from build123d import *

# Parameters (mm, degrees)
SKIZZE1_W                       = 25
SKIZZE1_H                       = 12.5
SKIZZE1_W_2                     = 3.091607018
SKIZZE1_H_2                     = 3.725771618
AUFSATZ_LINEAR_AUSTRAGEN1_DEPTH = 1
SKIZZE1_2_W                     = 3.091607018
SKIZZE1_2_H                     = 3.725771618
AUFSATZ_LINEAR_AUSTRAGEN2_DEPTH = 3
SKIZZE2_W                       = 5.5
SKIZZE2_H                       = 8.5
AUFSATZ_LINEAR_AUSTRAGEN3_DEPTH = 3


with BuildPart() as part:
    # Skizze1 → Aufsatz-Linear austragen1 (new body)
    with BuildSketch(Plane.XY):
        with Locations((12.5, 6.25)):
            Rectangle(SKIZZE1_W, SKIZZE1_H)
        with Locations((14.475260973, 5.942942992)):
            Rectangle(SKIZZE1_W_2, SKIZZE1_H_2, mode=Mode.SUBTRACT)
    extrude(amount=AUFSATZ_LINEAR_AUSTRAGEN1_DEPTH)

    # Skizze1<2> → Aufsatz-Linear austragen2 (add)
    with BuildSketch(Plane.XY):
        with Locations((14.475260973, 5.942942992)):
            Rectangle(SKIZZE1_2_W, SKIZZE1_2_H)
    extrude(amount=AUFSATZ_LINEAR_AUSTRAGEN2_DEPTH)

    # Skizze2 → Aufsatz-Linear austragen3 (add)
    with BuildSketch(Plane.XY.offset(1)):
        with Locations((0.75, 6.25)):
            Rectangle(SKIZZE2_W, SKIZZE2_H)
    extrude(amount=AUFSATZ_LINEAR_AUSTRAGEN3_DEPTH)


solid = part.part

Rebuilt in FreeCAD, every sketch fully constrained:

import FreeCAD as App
import Part
import Sketcher
from FreeCAD import Vector
Q = App.Units.Quantity


def add_polygon(sketch, points):
    """Adds a closed chain of lines whose ends are joined by coincident constraints."""
    first, n = sketch.GeometryCount, len(points)
    for a, b in zip(points, points[1:] + points[:1]):
        sketch.addGeometry(Part.LineSegment(App.Vector(*a, 0), App.Vector(*b, 0)), False)
    for i in range(n):
        sketch.addConstraint(Sketcher.Constraint("Coincident", first + i, 2, first + (i + 1) % n, 1))

doc = App.newDocument("Part")
body = doc.addObject("PartDesign::Body", "Body")

sketch1 = body.newObject("Sketcher::SketchObject", "Sketch")
sketch1.AttachmentSupport = (doc.getObject("XY_Plane"), [""])
sketch1.MapMode = "FlatFace"
add_polygon(sketch1, [(0, 12.5), (0, 0), (25, 0), (25, 12.5)])
add_polygon(sketch1, [(16, 4.1), (12.9, 4.1), (12.9, 7.8), (16, 7.8)])
sketch1.addConstraint(Sketcher.Constraint("Vertical", 0))
sketch1.addConstraint(Sketcher.Constraint("Horizontal", 1))
sketch1.addConstraint(Sketcher.Constraint("Vertical", 2))
sketch1.addConstraint(Sketcher.Constraint("Horizontal", 3))
sketch1.addConstraint(Sketcher.Constraint("Horizontal", 4))
sketch1.addConstraint(Sketcher.Constraint("Vertical", 5))
sketch1.addConstraint(Sketcher.Constraint("Horizontal", 6))
sketch1.addConstraint(Sketcher.Constraint("Vertical", 7))
sketch1.addConstraint(Sketcher.Constraint("Coincident", 0, 2, -1, 1))
sketch1.addConstraint(Sketcher.Constraint("DistanceX", 1, 1, 1, 2, Q("25 mm")))
sketch1.addConstraint(Sketcher.Constraint("DistanceY", 0, 2, 0, 1, Q("12.5 mm")))
sketch1.addConstraint(Sketcher.Constraint("DistanceY", 5, 1, 5, 2, Q("3.725772 mm")))
sketch1.addConstraint(Sketcher.Constraint("DistanceX", 4, 2, 4, 1, Q("3.091607 mm")))
sketch1.addConstraint(Sketcher.Constraint("DistanceY", -1, 1, 5, 2, Q("7.805829 mm")))
sketch1.addConstraint(Sketcher.Constraint("DistanceX", -1, 1, 4, 2, Q("12.929457 mm")))
pad1 = body.newObject("PartDesign::Pad", "Pad")
pad1.Profile = sketch1
pad1.Length = 1

sketch2 = body.newObject("Sketcher::SketchObject", "Sketch001")
sketch2.AttachmentSupport = (doc.getObject("XY_Plane"), [""])
sketch2.MapMode = "FlatFace"
add_polygon(sketch2, [(12.9, 7.8), (12.9, 4.1), (16, 4.1), (16, 7.8)])
sketch2.addConstraint(Sketcher.Constraint("Vertical", 0))
sketch2.addConstraint(Sketcher.Constraint("Horizontal", 1))
sketch2.addConstraint(Sketcher.Constraint("Vertical", 2))
sketch2.addConstraint(Sketcher.Constraint("Horizontal", 3))
sketch2.addConstraint(Sketcher.Constraint("DistanceY", 0, 2, 0, 1, Q("3.725772 mm")))
sketch2.addConstraint(Sketcher.Constraint("DistanceX", 1, 1, 1, 2, Q("3.091607 mm")))
sketch2.addConstraint(Sketcher.Constraint("DistanceY", -1, 1, 2, 2, Q("7.805829 mm")))
sketch2.addConstraint(Sketcher.Constraint("DistanceX", -1, 1, 0, 2, Q("12.929457 mm")))
pad2 = body.newObject("PartDesign::Pad", "Pad001")
pad2.Profile = sketch2
pad2.Length = 3

sketch3 = body.newObject("Sketcher::SketchObject", "Sketch002")
sketch3.AttachmentSupport = (doc.getObject("XY_Plane"), [""])
sketch3.MapMode = "FlatFace"
sketch3.AttachmentOffset = App.Placement(Vector(0, 0, 1), App.Rotation())
add_polygon(sketch3, [(-2, 10), (-2, 2), (4, 2), (4, 10)])
sketch3.addConstraint(Sketcher.Constraint("Vertical", 0))
sketch3.addConstraint(Sketcher.Constraint("Horizontal", 1))
sketch3.addConstraint(Sketcher.Constraint("Vertical", 2))
sketch3.addConstraint(Sketcher.Constraint("Horizontal", 3))
sketch3.addConstraint(Sketcher.Constraint("DistanceX", 1, 1, 1, 2, Q("5.5 mm")))
sketch3.addConstraint(Sketcher.Constraint("DistanceY", 0, 2, 0, 1, Q("8.5 mm")))
sketch3.addConstraint(Sketcher.Constraint("DistanceX", 0, 2, -1, 1, Q("2 mm")))
sketch3.addConstraint(Sketcher.Constraint("DistanceY", -1, 1, 0, 2, Q("2 mm")))
pad3 = body.newObject("PartDesign::Pad", "Pad002")
pad3.Profile = sketch3
pad3.Length = 3

doc.recompute()
